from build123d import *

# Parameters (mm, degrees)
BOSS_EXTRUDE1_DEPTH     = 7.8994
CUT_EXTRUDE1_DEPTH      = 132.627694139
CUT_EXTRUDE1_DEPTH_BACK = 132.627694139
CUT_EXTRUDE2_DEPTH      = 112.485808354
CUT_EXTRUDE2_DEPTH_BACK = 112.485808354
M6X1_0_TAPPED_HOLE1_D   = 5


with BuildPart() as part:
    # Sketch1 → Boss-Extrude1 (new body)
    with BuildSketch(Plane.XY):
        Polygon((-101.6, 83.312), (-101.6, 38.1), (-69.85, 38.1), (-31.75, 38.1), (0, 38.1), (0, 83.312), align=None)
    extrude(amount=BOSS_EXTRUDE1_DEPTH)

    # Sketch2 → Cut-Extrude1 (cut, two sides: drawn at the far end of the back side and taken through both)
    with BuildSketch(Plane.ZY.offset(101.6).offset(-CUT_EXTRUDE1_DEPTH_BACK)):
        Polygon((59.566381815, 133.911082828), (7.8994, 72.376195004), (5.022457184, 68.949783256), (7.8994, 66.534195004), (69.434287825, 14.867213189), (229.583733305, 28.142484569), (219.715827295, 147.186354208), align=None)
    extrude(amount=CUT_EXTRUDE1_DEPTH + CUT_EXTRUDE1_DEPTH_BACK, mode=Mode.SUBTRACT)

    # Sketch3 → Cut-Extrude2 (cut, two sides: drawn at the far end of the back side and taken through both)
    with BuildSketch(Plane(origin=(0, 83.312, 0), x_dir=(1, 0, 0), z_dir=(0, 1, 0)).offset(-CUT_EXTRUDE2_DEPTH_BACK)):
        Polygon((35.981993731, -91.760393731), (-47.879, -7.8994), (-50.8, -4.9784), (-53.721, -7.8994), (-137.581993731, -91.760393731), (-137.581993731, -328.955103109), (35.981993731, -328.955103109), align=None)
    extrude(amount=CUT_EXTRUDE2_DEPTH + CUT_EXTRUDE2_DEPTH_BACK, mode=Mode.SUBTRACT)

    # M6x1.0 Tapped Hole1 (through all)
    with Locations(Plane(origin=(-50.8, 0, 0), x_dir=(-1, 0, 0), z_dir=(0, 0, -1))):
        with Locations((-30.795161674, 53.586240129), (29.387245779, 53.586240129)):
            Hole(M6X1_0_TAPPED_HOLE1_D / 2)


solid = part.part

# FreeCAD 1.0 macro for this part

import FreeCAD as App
import Part
import Sketcher
Q = App.Units.Quantity

doc = App.newDocument("Part")
body = doc.addObject("PartDesign::Body", "Body")

sketch1 = body.newObject("Sketcher::SketchObject", "Sketch")
sketch1.AttachmentSupport = (doc.getObject("XY_Plane"), [""])
sketch1.MapMode = "FlatFace"
sketch1.addGeometry(Part.LineSegment(App.Vector(-101.6, 83.312, 0), App.Vector(-101.6, 38.1, 0)), False)
sketch1.addGeometry(Part.LineSegment(App.Vector(-101.6, 38.1, 0), App.Vector(0, 38.1, 0)), False)
sketch1.addGeometry(Part.LineSegment(App.Vector(0, 38.1, 0), App.Vector(0, 83.312, 0)), False)
sketch1.addGeometry(Part.LineSegment(App.Vector(0, 83.312, 0), App.Vector(-101.6, 83.312, 0)), False)
sketch1.addConstraint(Sketcher.Constraint("Coincident", 0, 2, 1, 1))
sketch1.addConstraint(Sketcher.Constraint("Coincident", 1, 2, 2, 1))
sketch1.addConstraint(Sketcher.Constraint("Coincident", 2, 2, 3, 1))
sketch1.addConstraint(Sketcher.Constraint("Coincident", 3, 2, 0, 1))
sketch1.addConstraint(Sketcher.Constraint("Vertical", 0))
sketch1.addConstraint(Sketcher.Constraint("Horizontal", 1))
sketch1.addConstraint(Sketcher.Constraint("Vertical", 2))
sketch1.addConstraint(Sketcher.Constraint("Horizontal", 3))
sketch1.addConstraint(Sketcher.Constraint("PointOnObject", 1, 2, -2))
sketch1.addConstraint(Sketcher.Constraint("DistanceX", 1, 1, 1, 2, Q("4 in")))
sketch1.addConstraint(Sketcher.Constraint("DistanceY", 0, 2, 0, 1, Q("1.78 in")))
sketch1.addConstraint(Sketcher.Constraint("DistanceY", -1, 1, 0, 2, Q("1.5 in")))
pad1 = body.newObject("PartDesign::Pad", "Pad")
pad1.Profile = sketch1
pad1.Length = Q("0.311 in")

sketch2 = body.newObject("Sketcher::SketchObject", "Sketch001")
sketch2.AttachmentSupport = (doc.getObject("YZ_Plane"), [""])
sketch2.MapMode = "FlatFace"
sketch2.AttachmentOffset = App.Placement(App.Vector(0, 0, -4 * 25.4), App.Rotation())
sketch2.addGeometry(Part.LineSegment(App.Vector(133.911083, 59.566382, 0), App.Vector(72.376195, 7.8994, 0)), False)
sketch2.addGeometry(Part.LineSegment(App.Vector(72.376195, 7.8994, 0), App.Vector(68.949783, 5.022457, 0)), False)
sketch2.addGeometry(Part.LineSegment(App.Vector(68.949783, 5.022457, 0), App.Vector(66.534195, 7.8994, 0)), False)
sketch2.addGeometry(Part.LineSegment(App.Vector(66.534195, 7.8994, 0), App.Vector(14.867213, 69.434288, 0)), False)
sketch2.addGeometry(Part.LineSegment(App.Vector(14.867213, 69.434288, 0), App.Vector(28.142485, 229.583733, 0)), False)
sketch2.addGeometry(Part.LineSegment(App.Vector(28.142485, 229.583733, 0), App.Vector(147.186354, 219.715827, 0)), False)
sketch2.addGeometry(Part.LineSegment(App.Vector(147.186354, 219.715827, 0), App.Vector(133.911083, 59.566382, 0)), False)
sketch2.addConstraint(Sketcher.Constraint("Coincident", 0, 2, 1, 1))
sketch2.addConstraint(Sketcher.Constraint("Coincident", 1, 2, 2, 1))
sketch2.addConstraint(Sketcher.Constraint("Coincident", 2, 2, 3, 1))
sketch2.addConstraint(Sketcher.Constraint("Coincident", 3, 2, 4, 1))
sketch2.addConstraint(Sketcher.Constraint("Coincident", 4, 2, 5, 1))
sketch2.addConstraint(Sketcher.Constraint("Coincident", 5, 2, 6, 1))
sketch2.addConstraint(Sketcher.Constraint("Coincident", 6, 2, 0, 1))
sketch2.addConstraint(Sketcher.Constraint("Parallel", 0, 1))
sketch2.addConstraint(Sketcher.Constraint("Perpendicular", 1, 2))
sketch2.addConstraint(Sketcher.Constraint("Parallel", 2, 3))
sketch2.addConstraint(Sketcher.Constraint("Perpendicular", 4, 5))
sketch2.addConstraint(Sketcher.Constraint("Perpendicular", 5, 6))
sketch2.addConstraint(Sketcher.Constraint("Horizontal", 0, 2, 2, 2))
sketch2.addConstraint(Sketcher.Constraint("Equal", 0, 3))
sketch2.addConstraint(Sketcher.Constraint("Equal", 4, 6))
sketch2.addConstraint(Sketcher.Constraint("DistanceX", 2, 2, 0, 2, Q("0.23 in")))
sketch2.addConstraint(Sketcher.Constraint("DistanceY", -1, 1, 0, 2, Q("0.311 in")))
sketch2.addConstraint(Sketcher.Constraint("DistanceX", 4, 2, 1, 2, Q("40.807299 mm")))
sketch2.addConstraint(Sketcher.Constraint("DistanceX", 1, 2, 6, 2, Q("64.9613 mm")))
sketch2.addConstraint(Sketcher.Constraint("Distance", 0, Q("80.349359 mm")))
sketch2.addConstraint(Sketcher.Constraint("DistanceX", -1, 1, 0, 2, Q("72.376195 mm")))
pocket1 = body.newObject("PartDesign::Pocket", "Pocket")
pocket1.Profile = sketch2
pocket1.Type = "ThroughAll"
pocket1.Midplane = True

sketch3 = body.newObject("Sketcher::SketchObject", "Sketch002")
sketch3.AttachmentSupport = (doc.getObject("XZ_Plane"), [""])
sketch3.MapMode = "FlatFace"
sketch3.AttachmentOffset = App.Placement(App.Vector(0, 0, -3.28 * 25.4), App.Rotation())
sketch3.addGeometry(Part.LineSegment(App.Vector(35.981994, 91.760394, 0), App.Vector(-50.8, 4.9784, 0)), False)
sketch3.addGeometry(Part.LineSegment(App.Vector(-50.8, 4.9784, 0), App.Vector(-137.581994, 91.760394, 0)), False)
sketch3.addGeometry(Part.LineSegment(App.Vector(-137.581994, 91.760394, 0), App.Vector(-137.581994, 328.955103, 0)), False)
sketch3.addGeometry(Part.LineSegment(App.Vector(-137.581994, 328.955103, 0), App.Vector(35.981994, 328.955103, 0)), False)
sketch3.addGeometry(Part.LineSegment(App.Vector(35.981994, 328.955103, 0), App.Vector(35.981994, 91.760394, 0)), False)
sketch3.addConstraint(Sketcher.Constraint("Coincident", 0, 2, 1, 1))
sketch3.addConstraint(Sketcher.Constraint("Coincident", 1, 2, 2, 1))
sketch3.addConstraint(Sketcher.Constraint("Coincident", 2, 2, 3, 1))
sketch3.addConstraint(Sketcher.Constraint("Coincident", 3, 2, 4, 1))
sketch3.addConstraint(Sketcher.Constraint("Coincident", 4, 2, 0, 1))
sketch3.addConstraint(Sketcher.Constraint("Vertical", 2))
sketch3.addConstraint(Sketcher.Constraint("Horizontal", 3))
sketch3.addConstraint(Sketcher.Constraint("Vertical", 4))
sketch3.addConstraint(Sketcher.Constraint("Perpendicular", 0, 1))
sketch3.addConstraint(Sketcher.Constraint("Horizontal", 1, 2, 4, 2))
sketch3.addConstraint(Sketcher.Constraint("Equal", 0, 1))
sketch3.addConstraint(Sketcher.Constraint("DistanceX", 0, 2, -1, 1, Q("2 in")))
sketch3.addConstraint(Sketcher.Constraint("DistanceY", -1, 1, 0, 2, Q("0.196 in")))
sketch3.addConstraint(Sketcher.Constraint("DistanceY", 2, 1, 2, 2, Q("237.194709 mm")))
sketch3.addConstraint(Sketcher.Constraint("DistanceX", 3, 1, 3, 2, Q("173.563987 mm")))
pocket2 = body.newObject("PartDesign::Pocket", "Pocket001")
pocket2.Profile = sketch3
pocket2.Type = "ThroughAll"
pocket2.Midplane = True

sketch4 = body.newObject("Sketcher::SketchObject", "Sketch003")
sketch4.AttachmentSupport = (doc.getObject("XY_Plane"), [""])
sketch4.MapMode = "FlatFace"
sketch4.addGeometry(Part.Circle(App.Vector(-20.004838, 53.58624, 0), App.Vector(0, 0, 1), 2.5), False)
sketch4.addGeometry(Part.Circle(App.Vector(-80.187246, 53.58624, 0), App.Vector(0, 0, 1), 2.5), False)
sketch4.addConstraint(Sketcher.Constraint("Equal", 0, 1))
sketch4.addConstraint(Sketcher.Constraint("Horizontal", 0, 3, 1, 3))
sketch4.addConstraint(Sketcher.Constraint("Diameter", 0, Q("5 mm")))
sketch4.addConstraint(Sketcher.Constraint("DistanceX", 0, 3, -1, 1, Q("20.004838 mm")))
sketch4.addConstraint(Sketcher.Constraint("DistanceY", -1, 1, 0, 3, Q("53.58624 mm")))
sketch4.addConstraint(Sketcher.Constraint("DistanceX", 1, 3, -1, 1, Q("80.187246 mm")))
doc.recompute()
hole = body.newObject("PartDesign::Hole", "Hole")
hole.Profile = sketch4
hole.ThreadType = "None"
hole.Diameter = 5
hole.DepthType = "ThroughAll"
hole.Reversed = True

doc.recompute()
